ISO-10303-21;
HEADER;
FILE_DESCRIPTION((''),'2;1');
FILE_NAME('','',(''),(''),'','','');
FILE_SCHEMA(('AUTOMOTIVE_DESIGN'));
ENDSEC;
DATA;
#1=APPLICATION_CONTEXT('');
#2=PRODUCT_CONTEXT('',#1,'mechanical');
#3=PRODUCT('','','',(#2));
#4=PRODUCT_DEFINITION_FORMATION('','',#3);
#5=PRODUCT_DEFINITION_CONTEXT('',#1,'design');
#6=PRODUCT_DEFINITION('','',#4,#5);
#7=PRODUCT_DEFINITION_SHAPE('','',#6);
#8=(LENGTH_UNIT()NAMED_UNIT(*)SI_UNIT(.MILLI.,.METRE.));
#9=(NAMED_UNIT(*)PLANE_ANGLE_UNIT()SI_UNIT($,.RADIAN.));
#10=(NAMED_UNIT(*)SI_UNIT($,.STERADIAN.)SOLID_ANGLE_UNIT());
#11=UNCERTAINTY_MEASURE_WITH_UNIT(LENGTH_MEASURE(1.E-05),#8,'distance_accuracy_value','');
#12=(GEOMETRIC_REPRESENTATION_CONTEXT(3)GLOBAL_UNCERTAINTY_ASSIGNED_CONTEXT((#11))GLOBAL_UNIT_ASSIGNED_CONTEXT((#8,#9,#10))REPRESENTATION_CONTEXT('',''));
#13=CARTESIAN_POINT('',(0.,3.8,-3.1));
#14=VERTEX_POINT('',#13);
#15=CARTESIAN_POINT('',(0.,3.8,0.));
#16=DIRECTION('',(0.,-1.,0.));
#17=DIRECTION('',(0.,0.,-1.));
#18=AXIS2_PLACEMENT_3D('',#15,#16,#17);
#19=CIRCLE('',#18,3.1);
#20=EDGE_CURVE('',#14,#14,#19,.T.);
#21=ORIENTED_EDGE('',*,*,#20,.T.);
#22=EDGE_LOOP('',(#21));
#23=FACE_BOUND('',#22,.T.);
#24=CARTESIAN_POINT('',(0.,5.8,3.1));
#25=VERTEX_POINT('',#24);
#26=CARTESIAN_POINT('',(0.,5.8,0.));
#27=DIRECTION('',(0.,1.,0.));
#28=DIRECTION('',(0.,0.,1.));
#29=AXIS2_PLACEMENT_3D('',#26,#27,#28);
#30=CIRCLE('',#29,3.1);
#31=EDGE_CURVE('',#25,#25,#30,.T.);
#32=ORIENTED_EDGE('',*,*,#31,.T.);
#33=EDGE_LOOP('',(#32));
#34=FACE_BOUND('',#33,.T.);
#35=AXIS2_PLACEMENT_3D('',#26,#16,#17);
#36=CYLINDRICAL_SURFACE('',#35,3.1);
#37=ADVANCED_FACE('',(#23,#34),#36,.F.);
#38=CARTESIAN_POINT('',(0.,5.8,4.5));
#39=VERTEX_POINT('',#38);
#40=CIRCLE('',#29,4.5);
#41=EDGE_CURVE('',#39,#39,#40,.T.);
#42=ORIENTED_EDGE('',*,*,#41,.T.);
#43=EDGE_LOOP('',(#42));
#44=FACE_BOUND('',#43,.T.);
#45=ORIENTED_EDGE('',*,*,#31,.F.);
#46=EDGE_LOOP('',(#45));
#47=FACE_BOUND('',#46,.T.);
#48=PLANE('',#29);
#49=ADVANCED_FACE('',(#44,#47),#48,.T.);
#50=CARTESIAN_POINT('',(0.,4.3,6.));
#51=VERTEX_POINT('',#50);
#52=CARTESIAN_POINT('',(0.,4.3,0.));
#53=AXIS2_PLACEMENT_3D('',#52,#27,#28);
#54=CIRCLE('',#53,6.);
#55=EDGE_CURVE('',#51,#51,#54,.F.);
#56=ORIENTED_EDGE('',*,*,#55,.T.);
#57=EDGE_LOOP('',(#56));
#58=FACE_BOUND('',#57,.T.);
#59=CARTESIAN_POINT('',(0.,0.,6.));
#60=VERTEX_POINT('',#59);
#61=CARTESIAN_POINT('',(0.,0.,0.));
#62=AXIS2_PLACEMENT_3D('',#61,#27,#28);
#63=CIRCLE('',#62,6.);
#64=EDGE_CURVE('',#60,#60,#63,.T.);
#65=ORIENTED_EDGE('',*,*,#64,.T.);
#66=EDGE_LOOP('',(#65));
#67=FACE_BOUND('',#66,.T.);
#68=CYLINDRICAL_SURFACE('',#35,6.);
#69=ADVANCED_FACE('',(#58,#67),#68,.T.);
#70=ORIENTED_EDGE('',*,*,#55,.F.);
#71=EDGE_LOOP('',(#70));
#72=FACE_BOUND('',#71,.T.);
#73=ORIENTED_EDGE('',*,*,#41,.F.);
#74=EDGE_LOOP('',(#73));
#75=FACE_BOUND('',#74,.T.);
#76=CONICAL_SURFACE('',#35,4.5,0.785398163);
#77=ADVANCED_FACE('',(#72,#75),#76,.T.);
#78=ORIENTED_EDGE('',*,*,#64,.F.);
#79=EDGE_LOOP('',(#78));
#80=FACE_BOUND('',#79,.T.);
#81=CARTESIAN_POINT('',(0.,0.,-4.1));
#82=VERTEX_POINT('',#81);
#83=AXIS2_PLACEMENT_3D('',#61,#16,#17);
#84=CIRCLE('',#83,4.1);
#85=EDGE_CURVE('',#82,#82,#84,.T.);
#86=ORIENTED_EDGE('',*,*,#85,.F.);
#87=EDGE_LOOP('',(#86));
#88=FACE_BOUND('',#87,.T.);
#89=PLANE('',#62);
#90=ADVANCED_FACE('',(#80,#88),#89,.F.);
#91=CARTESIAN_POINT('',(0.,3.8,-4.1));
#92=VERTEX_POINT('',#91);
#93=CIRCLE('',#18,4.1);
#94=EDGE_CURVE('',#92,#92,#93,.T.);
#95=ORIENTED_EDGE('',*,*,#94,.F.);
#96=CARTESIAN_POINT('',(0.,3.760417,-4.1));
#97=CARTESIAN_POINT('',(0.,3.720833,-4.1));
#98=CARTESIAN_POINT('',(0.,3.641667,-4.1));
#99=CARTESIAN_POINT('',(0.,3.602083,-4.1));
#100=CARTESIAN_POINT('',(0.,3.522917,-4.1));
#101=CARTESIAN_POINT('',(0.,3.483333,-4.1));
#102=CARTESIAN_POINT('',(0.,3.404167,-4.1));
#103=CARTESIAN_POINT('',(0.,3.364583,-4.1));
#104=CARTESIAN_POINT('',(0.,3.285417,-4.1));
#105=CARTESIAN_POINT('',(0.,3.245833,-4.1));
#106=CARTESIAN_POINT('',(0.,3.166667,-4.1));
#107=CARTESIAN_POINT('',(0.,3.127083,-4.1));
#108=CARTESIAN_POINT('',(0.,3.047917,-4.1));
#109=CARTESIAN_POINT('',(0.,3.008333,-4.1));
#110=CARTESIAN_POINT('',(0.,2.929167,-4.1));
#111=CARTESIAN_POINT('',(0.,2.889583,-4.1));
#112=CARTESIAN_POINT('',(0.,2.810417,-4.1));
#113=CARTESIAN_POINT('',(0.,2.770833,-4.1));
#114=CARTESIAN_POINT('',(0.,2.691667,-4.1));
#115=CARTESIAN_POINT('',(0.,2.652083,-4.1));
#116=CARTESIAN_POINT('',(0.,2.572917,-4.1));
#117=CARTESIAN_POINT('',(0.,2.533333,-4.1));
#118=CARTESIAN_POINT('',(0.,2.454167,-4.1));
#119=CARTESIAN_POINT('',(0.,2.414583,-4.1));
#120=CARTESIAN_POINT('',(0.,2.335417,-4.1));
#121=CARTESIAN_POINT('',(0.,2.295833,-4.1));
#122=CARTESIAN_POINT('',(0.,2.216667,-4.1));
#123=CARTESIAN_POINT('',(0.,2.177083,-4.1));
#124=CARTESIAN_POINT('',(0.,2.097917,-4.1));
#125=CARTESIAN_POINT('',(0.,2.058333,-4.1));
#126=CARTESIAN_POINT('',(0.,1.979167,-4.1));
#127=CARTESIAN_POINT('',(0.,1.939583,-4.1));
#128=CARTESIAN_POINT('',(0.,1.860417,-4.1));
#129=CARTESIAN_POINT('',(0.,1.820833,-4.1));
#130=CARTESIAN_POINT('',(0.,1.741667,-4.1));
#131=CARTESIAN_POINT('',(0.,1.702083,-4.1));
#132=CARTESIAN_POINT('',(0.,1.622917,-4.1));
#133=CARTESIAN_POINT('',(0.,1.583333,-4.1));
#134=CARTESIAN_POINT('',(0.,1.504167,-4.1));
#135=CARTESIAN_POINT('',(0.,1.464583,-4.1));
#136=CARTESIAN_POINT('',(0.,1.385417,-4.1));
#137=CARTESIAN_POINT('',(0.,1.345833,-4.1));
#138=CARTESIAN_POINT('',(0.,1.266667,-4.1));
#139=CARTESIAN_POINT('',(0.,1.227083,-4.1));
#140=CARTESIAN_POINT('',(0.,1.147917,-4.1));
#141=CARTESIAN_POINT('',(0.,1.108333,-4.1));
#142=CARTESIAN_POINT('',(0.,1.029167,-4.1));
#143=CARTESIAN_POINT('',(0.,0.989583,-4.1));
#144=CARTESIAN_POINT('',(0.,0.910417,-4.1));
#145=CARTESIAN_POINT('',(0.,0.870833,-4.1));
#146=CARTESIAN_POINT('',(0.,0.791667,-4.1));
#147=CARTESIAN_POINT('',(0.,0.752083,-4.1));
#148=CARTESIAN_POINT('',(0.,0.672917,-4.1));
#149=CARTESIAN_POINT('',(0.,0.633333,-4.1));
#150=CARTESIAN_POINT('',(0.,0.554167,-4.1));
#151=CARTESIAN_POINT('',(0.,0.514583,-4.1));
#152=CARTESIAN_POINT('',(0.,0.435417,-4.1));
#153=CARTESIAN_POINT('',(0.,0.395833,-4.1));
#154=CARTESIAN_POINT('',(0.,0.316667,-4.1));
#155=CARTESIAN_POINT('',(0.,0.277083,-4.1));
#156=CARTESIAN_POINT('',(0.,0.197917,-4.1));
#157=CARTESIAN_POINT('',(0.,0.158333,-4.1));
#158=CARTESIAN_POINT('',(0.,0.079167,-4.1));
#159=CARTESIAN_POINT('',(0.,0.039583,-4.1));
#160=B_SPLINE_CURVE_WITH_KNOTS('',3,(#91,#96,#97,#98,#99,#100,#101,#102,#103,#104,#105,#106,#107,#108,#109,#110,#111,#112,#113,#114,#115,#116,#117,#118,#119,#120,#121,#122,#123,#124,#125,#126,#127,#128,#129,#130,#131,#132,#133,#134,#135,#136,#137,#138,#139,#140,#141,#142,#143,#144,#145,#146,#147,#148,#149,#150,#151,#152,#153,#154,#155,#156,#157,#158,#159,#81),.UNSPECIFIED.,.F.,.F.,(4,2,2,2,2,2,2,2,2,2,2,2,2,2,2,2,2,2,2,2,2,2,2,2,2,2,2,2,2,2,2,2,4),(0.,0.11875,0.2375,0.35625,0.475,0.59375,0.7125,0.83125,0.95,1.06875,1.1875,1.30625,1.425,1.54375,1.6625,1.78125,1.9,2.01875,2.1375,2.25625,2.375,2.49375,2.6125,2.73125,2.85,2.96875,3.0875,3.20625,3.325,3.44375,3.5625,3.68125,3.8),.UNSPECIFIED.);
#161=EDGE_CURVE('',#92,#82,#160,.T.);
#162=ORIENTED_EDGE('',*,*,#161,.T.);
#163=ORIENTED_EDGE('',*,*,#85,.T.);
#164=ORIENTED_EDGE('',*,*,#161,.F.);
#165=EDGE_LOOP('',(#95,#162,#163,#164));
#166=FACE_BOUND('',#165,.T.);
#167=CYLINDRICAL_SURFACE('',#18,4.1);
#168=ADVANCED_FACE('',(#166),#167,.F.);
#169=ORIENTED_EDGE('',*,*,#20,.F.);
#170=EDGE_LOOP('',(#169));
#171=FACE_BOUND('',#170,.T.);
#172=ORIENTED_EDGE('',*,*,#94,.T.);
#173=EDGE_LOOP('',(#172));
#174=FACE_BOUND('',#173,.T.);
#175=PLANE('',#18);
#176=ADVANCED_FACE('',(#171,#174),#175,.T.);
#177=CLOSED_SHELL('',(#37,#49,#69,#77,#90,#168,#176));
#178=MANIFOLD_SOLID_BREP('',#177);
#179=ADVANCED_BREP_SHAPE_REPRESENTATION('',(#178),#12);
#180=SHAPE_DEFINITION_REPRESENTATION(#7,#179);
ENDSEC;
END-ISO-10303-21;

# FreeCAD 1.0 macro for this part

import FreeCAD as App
import Part
import Sketcher

V = App.Vector
Q = App.Units.Quantity


def edges_at(feature, points):
    """Names of the edges that pass closest to the given points."""
    edges = feature.Shape.Edges
    near = lambda p: min(range(len(edges)), key=lambda i: edges[i].distToShape(Part.Vertex(*p))[0])
    return sorted({f"Edge{near(p) + 1}" for p in points})

doc = App.newDocument("Part")
params = doc.addObject("Spreadsheet::Sheet", "Params")
for row, (alias, value) in enumerate([
    ("sketch1_diameter", "12 mm"),
    ("sketch1_diameter2", "6.2 mm"),
    ("pad1_length", "5.8 mm"),
    ("sketch2_diameter", "8.2 mm"),
    ("pocket1_length", "3.8 mm"),
    ("chamfer_size", "1.5 mm"),
], start=1):
    params.set(f"A{row}", alias)
    params.set(f"B{row}", "=" + value)
    params.setAlias(f"B{row}", alias)

body = doc.addObject("PartDesign::Body", "Body")

# Sketch on XZ plane
sketch1 = body.newObject("Sketcher::SketchObject", "Sketch")
sketch1.AttachmentSupport = (doc.getObject("XZ_Plane"), [""])
sketch1.MapMode = "FlatFace"
sketch1.addGeometry([
    Part.Circle(V(0, 0, 0), V(0, 0, 1), 6),
    Part.Circle(V(0, 0, 0), V(0, 0, 1), 3.1),
], False)
sketch1.addConstraint([
    Sketcher.Constraint("Coincident", 0, 3, -1, 1),
    Sketcher.Constraint("Coincident", 1, 3, -1, 1),
    Sketcher.Constraint("Diameter", 0, Q("12 mm")),
    Sketcher.Constraint("Diameter", 1, Q("6.2 mm")),
])
sketch1.setExpression("Constraints[2]", "Params.sketch1_diameter")
sketch1.setExpression("Constraints[3]", "Params.sketch1_diameter2")
pad1 = body.newObject("PartDesign::Pad", "Pad")
pad1.Profile = sketch1
pad1.setExpression("Length", "Params.pad1_length")
pad1.Reversed = True

# Sketch on XZ plane
sketch2 = body.newObject("Sketcher::SketchObject", "Sketch001")
sketch2.AttachmentSupport = (doc.getObject("XZ_Plane"), [""])
sketch2.MapMode = "FlatFace"
sketch2.addGeometry(Part.Circle(V(0, 0, 0), V(0, 0, 1), 4.1), False)
sketch2.addConstraint([
    Sketcher.Constraint("Coincident", 0, 3, -1, 1),
    Sketcher.Constraint("Diameter", 0, Q("8.2 mm")),
])
sketch2.setExpression("Constraints[1]", "Params.sketch2_diameter")
pocket1 = body.newObject("PartDesign::Pocket", "Pocket")
pocket1.Profile = sketch2
pocket1.setExpression("Length", "Params.pocket1_length")
doc.recompute()

chamfer = body.newObject("PartDesign::Chamfer", "Chamfer")
chamfer.Base = (pocket1, edges_at(pocket1, [(0, 5.8, -6)]))
chamfer.setExpression("Size", "Params.chamfer_size")

doc.recompute()
